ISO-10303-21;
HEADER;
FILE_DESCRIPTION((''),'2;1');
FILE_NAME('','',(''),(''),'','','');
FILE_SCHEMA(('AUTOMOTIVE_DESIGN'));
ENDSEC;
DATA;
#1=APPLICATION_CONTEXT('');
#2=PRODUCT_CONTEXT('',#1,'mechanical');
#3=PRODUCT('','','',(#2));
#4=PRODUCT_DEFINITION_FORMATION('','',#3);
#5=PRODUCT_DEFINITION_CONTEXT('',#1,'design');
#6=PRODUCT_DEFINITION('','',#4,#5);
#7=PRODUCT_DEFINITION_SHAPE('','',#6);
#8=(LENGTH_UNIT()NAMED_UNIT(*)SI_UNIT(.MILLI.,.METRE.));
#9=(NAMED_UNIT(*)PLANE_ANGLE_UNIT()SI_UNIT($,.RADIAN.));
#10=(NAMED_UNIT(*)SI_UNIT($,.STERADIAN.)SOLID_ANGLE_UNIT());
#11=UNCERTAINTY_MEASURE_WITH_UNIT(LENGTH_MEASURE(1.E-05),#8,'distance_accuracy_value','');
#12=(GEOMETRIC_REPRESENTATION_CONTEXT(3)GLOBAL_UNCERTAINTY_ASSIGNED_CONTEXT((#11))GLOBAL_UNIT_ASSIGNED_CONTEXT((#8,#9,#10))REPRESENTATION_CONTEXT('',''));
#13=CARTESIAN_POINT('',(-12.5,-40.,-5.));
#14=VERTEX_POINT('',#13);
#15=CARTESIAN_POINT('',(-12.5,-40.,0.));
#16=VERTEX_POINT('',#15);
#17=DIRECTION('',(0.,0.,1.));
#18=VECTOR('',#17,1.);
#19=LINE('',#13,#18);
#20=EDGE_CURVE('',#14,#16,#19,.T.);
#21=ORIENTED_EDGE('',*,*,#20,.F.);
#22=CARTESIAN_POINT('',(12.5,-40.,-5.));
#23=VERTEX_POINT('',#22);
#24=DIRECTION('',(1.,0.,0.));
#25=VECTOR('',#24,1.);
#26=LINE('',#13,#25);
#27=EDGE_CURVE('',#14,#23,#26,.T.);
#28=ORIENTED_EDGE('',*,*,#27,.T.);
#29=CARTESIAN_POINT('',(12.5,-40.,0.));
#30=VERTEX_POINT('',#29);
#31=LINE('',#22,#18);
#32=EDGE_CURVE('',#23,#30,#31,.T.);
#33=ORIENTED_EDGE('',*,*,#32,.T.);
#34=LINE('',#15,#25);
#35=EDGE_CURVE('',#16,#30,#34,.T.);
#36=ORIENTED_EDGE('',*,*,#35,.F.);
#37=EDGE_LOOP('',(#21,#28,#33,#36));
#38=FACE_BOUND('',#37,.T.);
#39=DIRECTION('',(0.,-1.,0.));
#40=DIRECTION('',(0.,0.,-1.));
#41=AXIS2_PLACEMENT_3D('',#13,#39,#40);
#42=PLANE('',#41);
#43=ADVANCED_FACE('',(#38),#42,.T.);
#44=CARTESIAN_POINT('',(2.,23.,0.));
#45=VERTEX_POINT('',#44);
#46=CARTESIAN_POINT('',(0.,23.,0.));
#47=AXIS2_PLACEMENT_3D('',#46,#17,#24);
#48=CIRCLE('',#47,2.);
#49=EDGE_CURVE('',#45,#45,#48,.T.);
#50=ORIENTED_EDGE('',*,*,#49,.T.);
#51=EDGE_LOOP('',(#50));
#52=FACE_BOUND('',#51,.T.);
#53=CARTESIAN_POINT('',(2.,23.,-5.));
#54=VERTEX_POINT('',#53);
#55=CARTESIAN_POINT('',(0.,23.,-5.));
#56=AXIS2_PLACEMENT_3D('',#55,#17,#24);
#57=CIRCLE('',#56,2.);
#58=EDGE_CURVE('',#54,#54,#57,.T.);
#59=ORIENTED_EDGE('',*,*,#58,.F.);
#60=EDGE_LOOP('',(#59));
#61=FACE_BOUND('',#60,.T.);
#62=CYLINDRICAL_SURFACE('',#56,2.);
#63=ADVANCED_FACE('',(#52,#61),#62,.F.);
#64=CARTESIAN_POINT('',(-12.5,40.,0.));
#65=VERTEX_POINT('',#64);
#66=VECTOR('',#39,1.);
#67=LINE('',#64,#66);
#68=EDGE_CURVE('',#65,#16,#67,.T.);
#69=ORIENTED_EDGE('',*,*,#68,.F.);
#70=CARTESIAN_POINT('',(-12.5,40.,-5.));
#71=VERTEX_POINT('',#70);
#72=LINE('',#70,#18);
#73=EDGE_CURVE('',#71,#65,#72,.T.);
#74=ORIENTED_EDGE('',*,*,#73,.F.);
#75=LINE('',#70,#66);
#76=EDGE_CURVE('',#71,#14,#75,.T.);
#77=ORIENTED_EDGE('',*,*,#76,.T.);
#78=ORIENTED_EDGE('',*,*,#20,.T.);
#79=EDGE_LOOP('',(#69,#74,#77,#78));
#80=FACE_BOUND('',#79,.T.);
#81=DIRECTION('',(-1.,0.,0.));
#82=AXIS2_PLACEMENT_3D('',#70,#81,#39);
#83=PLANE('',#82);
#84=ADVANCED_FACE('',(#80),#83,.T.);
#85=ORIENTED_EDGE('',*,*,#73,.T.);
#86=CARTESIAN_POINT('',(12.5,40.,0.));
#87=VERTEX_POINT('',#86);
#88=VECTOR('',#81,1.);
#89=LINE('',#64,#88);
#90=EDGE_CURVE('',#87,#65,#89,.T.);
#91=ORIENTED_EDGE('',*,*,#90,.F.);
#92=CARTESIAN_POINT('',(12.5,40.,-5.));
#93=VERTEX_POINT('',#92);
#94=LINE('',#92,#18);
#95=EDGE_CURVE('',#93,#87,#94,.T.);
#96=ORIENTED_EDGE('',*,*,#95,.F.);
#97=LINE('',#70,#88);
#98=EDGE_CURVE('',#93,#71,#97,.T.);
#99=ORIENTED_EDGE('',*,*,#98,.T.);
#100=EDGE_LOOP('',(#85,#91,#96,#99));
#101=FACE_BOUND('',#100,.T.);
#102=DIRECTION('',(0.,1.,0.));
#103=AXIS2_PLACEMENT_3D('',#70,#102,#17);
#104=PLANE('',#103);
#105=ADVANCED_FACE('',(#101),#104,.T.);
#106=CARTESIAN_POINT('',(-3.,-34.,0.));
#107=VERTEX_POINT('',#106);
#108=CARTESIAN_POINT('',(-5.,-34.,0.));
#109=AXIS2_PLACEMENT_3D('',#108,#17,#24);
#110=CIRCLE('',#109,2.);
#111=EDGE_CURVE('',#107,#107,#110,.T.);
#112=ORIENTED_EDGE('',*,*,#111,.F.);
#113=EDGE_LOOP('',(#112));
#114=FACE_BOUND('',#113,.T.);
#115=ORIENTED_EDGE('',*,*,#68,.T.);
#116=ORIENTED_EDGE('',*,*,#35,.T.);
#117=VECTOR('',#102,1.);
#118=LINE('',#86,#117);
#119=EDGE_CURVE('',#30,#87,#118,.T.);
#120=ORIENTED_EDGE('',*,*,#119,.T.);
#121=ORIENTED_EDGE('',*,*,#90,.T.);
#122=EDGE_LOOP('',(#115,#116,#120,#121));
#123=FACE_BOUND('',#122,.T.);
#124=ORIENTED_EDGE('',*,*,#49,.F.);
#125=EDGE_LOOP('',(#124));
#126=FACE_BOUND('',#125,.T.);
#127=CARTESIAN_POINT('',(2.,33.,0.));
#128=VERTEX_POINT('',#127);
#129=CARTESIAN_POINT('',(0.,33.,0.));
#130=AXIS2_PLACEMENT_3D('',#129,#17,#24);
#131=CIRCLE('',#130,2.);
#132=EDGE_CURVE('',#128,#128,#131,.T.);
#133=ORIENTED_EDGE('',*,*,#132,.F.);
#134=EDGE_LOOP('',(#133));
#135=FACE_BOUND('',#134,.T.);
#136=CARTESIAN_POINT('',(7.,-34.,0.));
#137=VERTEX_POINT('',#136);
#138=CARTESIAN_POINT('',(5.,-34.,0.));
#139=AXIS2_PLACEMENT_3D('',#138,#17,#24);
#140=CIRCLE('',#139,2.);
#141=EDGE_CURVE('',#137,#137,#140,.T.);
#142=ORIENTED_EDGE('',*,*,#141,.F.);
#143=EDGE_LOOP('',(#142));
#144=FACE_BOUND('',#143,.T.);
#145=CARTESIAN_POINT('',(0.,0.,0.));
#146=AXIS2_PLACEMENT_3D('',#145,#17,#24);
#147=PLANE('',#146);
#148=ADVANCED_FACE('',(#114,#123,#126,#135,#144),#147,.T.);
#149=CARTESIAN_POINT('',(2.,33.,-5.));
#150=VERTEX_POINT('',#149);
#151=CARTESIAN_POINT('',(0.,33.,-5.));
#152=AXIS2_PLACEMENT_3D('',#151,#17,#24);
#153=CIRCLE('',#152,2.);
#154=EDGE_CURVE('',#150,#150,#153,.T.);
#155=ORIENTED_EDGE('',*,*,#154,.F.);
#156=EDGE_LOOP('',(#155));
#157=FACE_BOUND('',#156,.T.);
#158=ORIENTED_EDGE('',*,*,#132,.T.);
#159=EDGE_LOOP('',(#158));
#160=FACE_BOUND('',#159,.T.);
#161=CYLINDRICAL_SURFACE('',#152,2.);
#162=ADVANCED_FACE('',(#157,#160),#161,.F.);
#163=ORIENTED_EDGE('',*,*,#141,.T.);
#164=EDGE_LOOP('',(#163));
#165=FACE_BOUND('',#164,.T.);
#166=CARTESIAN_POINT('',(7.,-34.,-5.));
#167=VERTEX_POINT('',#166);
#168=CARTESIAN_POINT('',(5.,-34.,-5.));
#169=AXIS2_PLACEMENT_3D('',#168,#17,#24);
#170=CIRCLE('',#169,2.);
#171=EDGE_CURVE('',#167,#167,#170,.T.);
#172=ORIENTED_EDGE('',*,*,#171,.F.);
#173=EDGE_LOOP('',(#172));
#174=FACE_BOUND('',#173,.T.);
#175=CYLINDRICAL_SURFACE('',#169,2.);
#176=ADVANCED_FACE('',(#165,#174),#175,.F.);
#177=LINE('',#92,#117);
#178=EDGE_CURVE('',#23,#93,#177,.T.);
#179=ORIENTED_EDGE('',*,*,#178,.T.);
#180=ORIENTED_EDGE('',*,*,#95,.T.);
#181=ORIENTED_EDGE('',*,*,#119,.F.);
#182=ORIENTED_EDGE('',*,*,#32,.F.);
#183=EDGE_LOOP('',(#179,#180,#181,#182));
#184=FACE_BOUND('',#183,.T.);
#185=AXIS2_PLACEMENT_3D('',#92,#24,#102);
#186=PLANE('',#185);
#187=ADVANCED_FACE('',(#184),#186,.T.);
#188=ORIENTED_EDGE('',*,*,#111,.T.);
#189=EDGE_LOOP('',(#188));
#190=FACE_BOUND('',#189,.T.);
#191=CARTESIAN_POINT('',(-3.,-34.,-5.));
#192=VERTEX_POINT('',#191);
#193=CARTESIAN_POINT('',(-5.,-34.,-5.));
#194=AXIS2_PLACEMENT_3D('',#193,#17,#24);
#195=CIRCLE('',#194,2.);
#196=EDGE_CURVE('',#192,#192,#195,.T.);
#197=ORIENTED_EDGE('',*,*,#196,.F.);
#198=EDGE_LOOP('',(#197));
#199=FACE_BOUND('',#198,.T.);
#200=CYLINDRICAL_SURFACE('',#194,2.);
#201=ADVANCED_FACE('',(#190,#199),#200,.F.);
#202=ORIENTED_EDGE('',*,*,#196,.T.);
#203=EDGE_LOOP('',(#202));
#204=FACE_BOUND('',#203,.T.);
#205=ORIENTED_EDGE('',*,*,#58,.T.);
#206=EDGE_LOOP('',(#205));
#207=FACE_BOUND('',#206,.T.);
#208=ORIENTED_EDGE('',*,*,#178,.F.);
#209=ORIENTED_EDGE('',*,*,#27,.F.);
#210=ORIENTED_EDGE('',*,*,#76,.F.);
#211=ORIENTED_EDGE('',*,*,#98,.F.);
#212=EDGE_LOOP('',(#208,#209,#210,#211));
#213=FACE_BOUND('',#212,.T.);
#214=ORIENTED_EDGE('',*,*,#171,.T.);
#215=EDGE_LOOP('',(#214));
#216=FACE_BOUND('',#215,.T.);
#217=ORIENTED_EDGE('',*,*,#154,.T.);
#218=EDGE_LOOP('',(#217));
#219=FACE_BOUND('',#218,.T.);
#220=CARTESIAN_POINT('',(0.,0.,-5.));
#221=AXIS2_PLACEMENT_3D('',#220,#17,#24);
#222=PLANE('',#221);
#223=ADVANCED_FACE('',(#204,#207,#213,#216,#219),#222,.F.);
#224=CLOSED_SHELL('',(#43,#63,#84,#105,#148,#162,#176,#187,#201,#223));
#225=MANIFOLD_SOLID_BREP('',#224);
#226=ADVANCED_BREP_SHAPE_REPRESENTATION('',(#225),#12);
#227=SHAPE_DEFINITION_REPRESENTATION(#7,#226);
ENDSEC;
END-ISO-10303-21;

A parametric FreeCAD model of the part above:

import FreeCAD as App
import Part
import Sketcher
Q = App.Units.Quantity

doc = App.newDocument("Part")
body = doc.addObject("PartDesign::Body", "Body")

sketch1 = body.newObject("Sketcher::SketchObject", "Sketch")
sketch1.AttachmentSupport = (doc.getObject("XY_Plane"), [""])
sketch1.MapMode = "FlatFace"
sketch1.addGeometry([
    Part.LineSegment(App.Vector(-12, 40, 0), App.Vector(-12, -40, 0)),
    Part.LineSegment(App.Vector(-12, -40, 0), App.Vector(12, -40, 0)),
    Part.LineSegment(App.Vector(12, -40, 0), App.Vector(12, 40, 0)),
    Part.LineSegment(App.Vector(12, 40, 0), App.Vector(-12, 40, 0)),
], False)
sketch1.addConstraint([
    Sketcher.Constraint("Coincident", 0, 2, 1, 1),
    Sketcher.Constraint("Coincident", 1, 2, 2, 1),
    Sketcher.Constraint("Coincident", 2, 2, 3, 1),
    Sketcher.Constraint("Coincident", 3, 2, 0, 1),
    Sketcher.Constraint("Vertical", 0),
    Sketcher.Constraint("Horizontal", 1),
    Sketcher.Constraint("Vertical", 2),
    Sketcher.Constraint("Horizontal", 3),
    Sketcher.Constraint("Symmetric", 0, 2, 2, 2, -1, 1),
    Sketcher.Constraint("DistanceX", 1, 1, 1, 2, Q("25 mm")),
    Sketcher.Constraint("DistanceY", 0, 2, 0, 1, Q("80 mm")),
])
pad1 = body.newObject("PartDesign::Pad", "Pad")
pad1.Profile = sketch1
pad1.Length = 5
pad1.Reversed = True

sketch2 = body.newObject("Sketcher::SketchObject", "Sketch001")
sketch2.AttachmentSupport = (doc.getObject("XY_Plane"), [""])
sketch2.MapMode = "FlatFace"
sketch2.addGeometry([
    Part.Circle(App.Vector(0, 33, 0), App.Vector(0, 0, 1), 2),
    Part.Circle(App.Vector(0, 23, 0), App.Vector(0, 0, 1), 2),
    Part.Circle(App.Vector(-5, -34, 0), App.Vector(0, 0, 1), 2),
    Part.Circle(App.Vector(5, -34, 0), App.Vector(0, 0, 1), 2),
], False)
sketch2.addConstraint([
    Sketcher.Constraint("Equal", 0, 1),
    Sketcher.Constraint("Equal", 1, 2),
    Sketcher.Constraint("Equal", 2, 3),
    Sketcher.Constraint("Symmetric", 2, 3, 3, 3, -2),
    Sketcher.Constraint("PointOnObject", 0, 3, -2),
    Sketcher.Constraint("PointOnObject", 1, 3, -2),
    Sketcher.Constraint("Diameter", 0, Q("4 mm")),
    Sketcher.Constraint("DistanceY", -1, 1, 0, 3, Q("33 mm")),
    Sketcher.Constraint("DistanceY", -1, 1, 1, 3, Q("23 mm")),
    Sketcher.Constraint("DistanceX", 2, 3, -1, 1, Q("5 mm")),
    Sketcher.Constraint("DistanceY", 2, 3, -1, 1, Q("34 mm")),
])
pocket1 = body.newObject("PartDesign::Pocket", "Pocket")
pocket1.Profile = sketch2
pocket1.Type = "ThroughAll"

doc.recompute()
